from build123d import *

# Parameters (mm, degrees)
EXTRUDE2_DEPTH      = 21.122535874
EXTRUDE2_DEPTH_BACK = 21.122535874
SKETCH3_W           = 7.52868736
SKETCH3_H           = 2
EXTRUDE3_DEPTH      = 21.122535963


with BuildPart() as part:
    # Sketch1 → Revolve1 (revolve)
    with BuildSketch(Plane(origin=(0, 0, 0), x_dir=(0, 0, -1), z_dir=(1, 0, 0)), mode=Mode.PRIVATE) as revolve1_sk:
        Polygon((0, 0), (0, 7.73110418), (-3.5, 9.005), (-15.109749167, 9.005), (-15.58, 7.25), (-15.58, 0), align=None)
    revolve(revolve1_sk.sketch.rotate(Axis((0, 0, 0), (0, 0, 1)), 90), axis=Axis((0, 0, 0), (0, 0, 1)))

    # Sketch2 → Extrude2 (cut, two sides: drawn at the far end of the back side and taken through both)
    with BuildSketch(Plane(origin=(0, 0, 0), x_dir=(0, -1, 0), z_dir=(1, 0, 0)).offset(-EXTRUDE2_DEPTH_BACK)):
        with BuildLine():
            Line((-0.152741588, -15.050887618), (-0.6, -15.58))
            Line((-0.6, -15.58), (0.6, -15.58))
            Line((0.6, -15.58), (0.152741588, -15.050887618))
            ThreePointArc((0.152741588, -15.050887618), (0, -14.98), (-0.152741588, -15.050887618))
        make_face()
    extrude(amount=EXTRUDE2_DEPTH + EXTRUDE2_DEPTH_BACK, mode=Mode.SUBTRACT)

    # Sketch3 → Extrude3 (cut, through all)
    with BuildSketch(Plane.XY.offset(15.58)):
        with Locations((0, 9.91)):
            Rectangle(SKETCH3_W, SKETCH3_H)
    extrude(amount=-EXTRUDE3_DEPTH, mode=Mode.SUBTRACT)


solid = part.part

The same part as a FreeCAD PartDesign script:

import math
import FreeCAD as App
import Part
import Sketcher
Q = App.Units.Quantity


def add_polygon(sketch, points):
    """Adds a closed chain of lines whose ends are joined by coincident constraints."""
    first, n = sketch.GeometryCount, len(points)
    for a, b in zip(points, points[1:] + points[:1]):
        sketch.addGeometry(Part.LineSegment(App.Vector(*a, 0), App.Vector(*b, 0)), False)
    for i in range(n):
        sketch.addConstraint(Sketcher.Constraint("Coincident", first + i, 2, first + (i + 1) % n, 1))

doc = App.newDocument("Part")
body = doc.addObject("PartDesign::Body", "Body")

# Sketch on YZ plane
sketch1 = body.newObject("Sketcher::SketchObject", "Sketch")
sketch1.AttachmentSupport = (doc.getObject("YZ_Plane"), [""])
sketch1.MapMode = "FlatFace"
add_polygon(sketch1, [(0, 0), (7.731104, 0), (9.005, 3.5), (9.005, 15.109749), (7.25, 15.58), (0, 15.58)])  # lines 0-5
sketch1.addConstraint([
    Sketcher.Constraint("Horizontal", 0),
    Sketcher.Constraint("Vertical", 2),
    Sketcher.Constraint("Horizontal", 4),
    Sketcher.Constraint("Vertical", 5),
    Sketcher.Constraint("Coincident", 5, 2, -1, 1),
    Sketcher.Constraint("Angle", 1, Q("70 deg")),
    Sketcher.Constraint("Angle", 3, Q("165 deg")),
    Sketcher.Constraint("DistanceX", 4, 2, 4, 1, 7.25),
    Sketcher.Constraint("DistanceY", 5, 2, 5, 1, 15.58),
    Sketcher.Constraint("DistanceY", -1, 1, 1, 2, 3.5),
    Sketcher.Constraint("DistanceX", -1, 1, 1, 2, 9.005),
])
revolution = body.newObject("PartDesign::Revolution", "Revolution")
revolution.Profile = sketch1
revolution.ReferenceAxis = (sketch1, ["V_Axis"])
revolution.Angle = 360

# Sketch on YZ plane
sketch2 = body.newObject("Sketcher::SketchObject", "Sketch001")
sketch2.AttachmentSupport = (doc.getObject("YZ_Plane"), [""])
sketch2.MapMode = "FlatFace"
sketch2.addGeometry([
    Part.LineSegment(App.Vector(0.152742, 15.050888, 0), App.Vector(0.6, 15.58, 0)),
    Part.LineSegment(App.Vector(0.6, 15.58, 0), App.Vector(-0.6, 15.58, 0)),
    Part.LineSegment(App.Vector(-0.6, 15.58, 0), App.Vector(-0.152742, 15.050888, 0)),
    Part.ArcOfCircle(Part.Circle(App.Vector(0, 15.18, 0), App.Vector(0, 0, 1), 0.2), math.radians(-139.792182), math.radians(-40.207818)),
], False)
sketch2.addConstraint([
    Sketcher.Constraint("Coincident", 0, 2, 1, 1),
    Sketcher.Constraint("Coincident", 1, 2, 2, 1),
    Sketcher.Constraint("Tangent", 2, 2, 3, 1),
    Sketcher.Constraint("Tangent", 3, 2, 0, 1),
    Sketcher.Constraint("Horizontal", 1),
    Sketcher.Constraint("Symmetric", 2, 2, 3, 2, -2),
    Sketcher.Constraint("Radius", 3, 0.2),
    Sketcher.Constraint("DistanceX", 1, 2, 1, 1, 1.2),
    Sketcher.Constraint("DistanceY", 3, 3, 0, 2, 0.4),
    Sketcher.Constraint("DistanceY", -1, 1, 3, 3, 15.18),
])
pocket1 = body.newObject("PartDesign::Pocket", "Pocket")
pocket1.Profile = sketch2
pocket1.Type = "ThroughAll"
pocket1.Midplane = True

# Sketch on XY plane
sketch3 = body.newObject("Sketcher::SketchObject", "Sketch002")
sketch3.AttachmentSupport = (doc.getObject("XY_Plane"), [""])
sketch3.MapMode = "FlatFace"
sketch3.AttachmentOffset = App.Placement(App.Vector(0, 0, 15.58), App.Rotation())
add_polygon(sketch3, [(-3.764344, 10.91), (-3.764344, 8.91), (3.764344, 8.91), (3.764344, 10.91)])  # lines 0-3
sketch3.addConstraint([
    Sketcher.Constraint("Vertical", 0),
    Sketcher.Constraint("Horizontal", 1),
    Sketcher.Constraint("Vertical", 2),
    Sketcher.Constraint("Horizontal", 3),
    Sketcher.Constraint("DistanceY", 0, 2, 0, 1, 2.0),
    Sketcher.Constraint("DistanceY", -1, 1, 0, 2, 8.91),
    Sketcher.Constraint("DistanceX", 1, 1, 1, 2, 7.528687),
    Sketcher.Constraint("DistanceX", 0, 2, -1, 1, 3.764344),
])
pocket2 = body.newObject("PartDesign::Pocket", "Pocket001")
pocket2.Profile = sketch3
pocket2.Type = "ThroughAll"

doc.recompute()
